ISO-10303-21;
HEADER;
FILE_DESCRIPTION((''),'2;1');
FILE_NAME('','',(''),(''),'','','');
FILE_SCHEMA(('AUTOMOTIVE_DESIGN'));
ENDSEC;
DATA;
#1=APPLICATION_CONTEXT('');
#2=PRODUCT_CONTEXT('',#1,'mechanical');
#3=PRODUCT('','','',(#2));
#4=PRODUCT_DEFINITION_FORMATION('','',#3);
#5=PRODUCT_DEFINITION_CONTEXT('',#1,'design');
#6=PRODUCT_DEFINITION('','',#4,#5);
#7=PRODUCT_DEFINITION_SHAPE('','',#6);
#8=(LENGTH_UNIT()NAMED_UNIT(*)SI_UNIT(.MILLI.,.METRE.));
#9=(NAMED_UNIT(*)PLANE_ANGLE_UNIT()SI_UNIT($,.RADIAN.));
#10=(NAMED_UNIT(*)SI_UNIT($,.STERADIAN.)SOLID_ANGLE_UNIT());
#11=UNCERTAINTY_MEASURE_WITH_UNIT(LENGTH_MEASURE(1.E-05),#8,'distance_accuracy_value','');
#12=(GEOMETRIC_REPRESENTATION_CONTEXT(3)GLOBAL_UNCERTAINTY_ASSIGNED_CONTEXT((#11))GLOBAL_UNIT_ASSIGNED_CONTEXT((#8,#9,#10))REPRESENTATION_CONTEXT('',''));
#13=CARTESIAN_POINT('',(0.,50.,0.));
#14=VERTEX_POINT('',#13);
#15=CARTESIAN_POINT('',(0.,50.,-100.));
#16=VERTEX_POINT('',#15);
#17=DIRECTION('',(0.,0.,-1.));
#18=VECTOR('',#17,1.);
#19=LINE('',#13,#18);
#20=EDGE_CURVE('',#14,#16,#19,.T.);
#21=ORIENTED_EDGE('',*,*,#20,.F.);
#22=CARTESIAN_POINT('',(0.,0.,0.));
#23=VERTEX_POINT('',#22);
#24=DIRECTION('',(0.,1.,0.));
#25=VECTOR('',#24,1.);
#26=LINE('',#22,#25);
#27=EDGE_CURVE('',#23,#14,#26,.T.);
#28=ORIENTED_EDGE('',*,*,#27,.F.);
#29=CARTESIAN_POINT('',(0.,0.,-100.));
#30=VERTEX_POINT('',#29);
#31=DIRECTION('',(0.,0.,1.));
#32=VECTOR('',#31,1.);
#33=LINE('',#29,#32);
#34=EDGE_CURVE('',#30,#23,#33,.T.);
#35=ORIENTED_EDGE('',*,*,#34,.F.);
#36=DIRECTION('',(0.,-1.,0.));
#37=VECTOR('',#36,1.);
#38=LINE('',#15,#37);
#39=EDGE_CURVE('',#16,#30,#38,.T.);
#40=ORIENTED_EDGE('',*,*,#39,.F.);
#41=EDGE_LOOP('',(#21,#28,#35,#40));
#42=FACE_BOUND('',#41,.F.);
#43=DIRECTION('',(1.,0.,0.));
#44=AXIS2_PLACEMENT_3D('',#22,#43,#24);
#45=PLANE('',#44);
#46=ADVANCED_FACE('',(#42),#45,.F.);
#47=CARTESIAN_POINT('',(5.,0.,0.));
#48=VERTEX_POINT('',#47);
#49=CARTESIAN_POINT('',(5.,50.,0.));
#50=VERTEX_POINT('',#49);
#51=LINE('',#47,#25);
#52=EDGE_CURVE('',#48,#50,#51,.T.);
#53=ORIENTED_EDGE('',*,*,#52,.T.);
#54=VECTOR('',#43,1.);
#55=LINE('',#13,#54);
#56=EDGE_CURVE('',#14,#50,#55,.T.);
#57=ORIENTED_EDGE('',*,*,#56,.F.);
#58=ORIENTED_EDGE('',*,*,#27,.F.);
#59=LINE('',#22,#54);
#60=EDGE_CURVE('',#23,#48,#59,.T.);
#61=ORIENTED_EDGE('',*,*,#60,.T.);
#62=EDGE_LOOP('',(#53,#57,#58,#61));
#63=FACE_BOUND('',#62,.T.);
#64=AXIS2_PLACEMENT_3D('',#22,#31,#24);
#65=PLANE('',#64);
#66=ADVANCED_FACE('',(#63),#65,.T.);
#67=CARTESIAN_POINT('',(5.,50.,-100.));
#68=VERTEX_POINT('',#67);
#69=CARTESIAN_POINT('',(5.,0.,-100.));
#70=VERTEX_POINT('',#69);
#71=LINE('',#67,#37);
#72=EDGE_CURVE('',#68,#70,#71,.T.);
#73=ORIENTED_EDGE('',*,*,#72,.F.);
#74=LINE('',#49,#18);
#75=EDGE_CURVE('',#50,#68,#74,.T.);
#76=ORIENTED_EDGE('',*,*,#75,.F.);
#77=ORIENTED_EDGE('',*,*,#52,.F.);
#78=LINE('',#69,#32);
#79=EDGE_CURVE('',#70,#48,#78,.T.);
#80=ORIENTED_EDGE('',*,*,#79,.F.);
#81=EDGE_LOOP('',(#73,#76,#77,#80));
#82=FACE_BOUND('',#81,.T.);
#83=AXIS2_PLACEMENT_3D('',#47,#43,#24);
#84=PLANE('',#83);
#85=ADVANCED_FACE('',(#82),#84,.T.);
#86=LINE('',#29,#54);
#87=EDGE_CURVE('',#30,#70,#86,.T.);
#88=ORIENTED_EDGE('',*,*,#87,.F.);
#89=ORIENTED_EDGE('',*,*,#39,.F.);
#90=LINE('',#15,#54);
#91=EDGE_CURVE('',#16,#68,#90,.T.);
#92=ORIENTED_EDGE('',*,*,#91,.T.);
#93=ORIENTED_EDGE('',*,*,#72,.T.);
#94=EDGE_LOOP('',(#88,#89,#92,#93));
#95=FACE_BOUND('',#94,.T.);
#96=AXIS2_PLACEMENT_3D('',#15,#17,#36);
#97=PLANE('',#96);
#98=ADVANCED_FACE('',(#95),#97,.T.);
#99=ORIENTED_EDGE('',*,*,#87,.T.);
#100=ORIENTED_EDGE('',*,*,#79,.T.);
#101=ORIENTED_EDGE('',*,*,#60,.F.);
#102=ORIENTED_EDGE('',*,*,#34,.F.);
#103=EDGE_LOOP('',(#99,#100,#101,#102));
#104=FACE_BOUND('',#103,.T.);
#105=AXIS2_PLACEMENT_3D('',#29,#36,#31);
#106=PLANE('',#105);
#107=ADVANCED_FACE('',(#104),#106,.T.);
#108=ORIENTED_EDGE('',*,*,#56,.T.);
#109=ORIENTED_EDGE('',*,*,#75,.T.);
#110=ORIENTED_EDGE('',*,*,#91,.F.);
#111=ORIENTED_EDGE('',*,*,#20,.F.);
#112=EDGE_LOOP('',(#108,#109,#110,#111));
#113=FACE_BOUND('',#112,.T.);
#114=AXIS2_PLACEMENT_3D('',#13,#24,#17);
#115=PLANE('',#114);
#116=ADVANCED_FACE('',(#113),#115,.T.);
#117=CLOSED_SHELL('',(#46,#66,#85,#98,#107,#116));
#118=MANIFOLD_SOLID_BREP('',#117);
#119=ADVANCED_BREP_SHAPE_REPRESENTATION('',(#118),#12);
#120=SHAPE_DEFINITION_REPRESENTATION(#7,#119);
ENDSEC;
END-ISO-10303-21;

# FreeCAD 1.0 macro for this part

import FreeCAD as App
import Part
import Sketcher

doc = App.newDocument("Part")
body = doc.addObject("PartDesign::Body", "Body")

sketch1 = doc.addObject("Sketcher::SketchObject", "Sketch")
body.addObject(sketch1)
sketch1.AttachmentSupport = (doc.YZ_Plane, [""])
sketch1.MapMode = "FlatFace"
sketch1.addGeometry(Part.LineSegment(App.Vector(50, 0, 0), App.Vector(0, 0, 0)), False)
sketch1.addGeometry(Part.LineSegment(App.Vector(0, 0, 0), App.Vector(0, -100, 0)), False)
sketch1.addGeometry(Part.LineSegment(App.Vector(0, -100, 0), App.Vector(50, -100, 0)), False)
sketch1.addGeometry(Part.LineSegment(App.Vector(50, -100, 0), App.Vector(50, 0, 0)), False)
sketch1.addConstraint(Sketcher.Constraint("Coincident", 0, 2, 1, 1))
sketch1.addConstraint(Sketcher.Constraint("Coincident", 1, 2, 2, 1))
sketch1.addConstraint(Sketcher.Constraint("Coincident", 2, 2, 3, 1))
sketch1.addConstraint(Sketcher.Constraint("Coincident", 3, 2, 0, 1))
sketch1.addConstraint(Sketcher.Constraint("Horizontal", 0))
sketch1.addConstraint(Sketcher.Constraint("Vertical", 1))
sketch1.addConstraint(Sketcher.Constraint("Horizontal", 2))
sketch1.addConstraint(Sketcher.Constraint("Vertical", 3))
sketch1.addConstraint(Sketcher.Constraint("Coincident", 0, 2, -1, 1))
sketch1.addConstraint(Sketcher.Constraint("DistanceX", 0, 2, 0, 1, 50.0))
sketch1.addConstraint(Sketcher.Constraint("DistanceY", 1, 2, 1, 1, 100.0))
pad1 = doc.addObject("PartDesign::Pad", "Pad")
body.addObject(pad1)
pad1.Profile = sketch1
pad1.Length = 5

doc.recompute()
